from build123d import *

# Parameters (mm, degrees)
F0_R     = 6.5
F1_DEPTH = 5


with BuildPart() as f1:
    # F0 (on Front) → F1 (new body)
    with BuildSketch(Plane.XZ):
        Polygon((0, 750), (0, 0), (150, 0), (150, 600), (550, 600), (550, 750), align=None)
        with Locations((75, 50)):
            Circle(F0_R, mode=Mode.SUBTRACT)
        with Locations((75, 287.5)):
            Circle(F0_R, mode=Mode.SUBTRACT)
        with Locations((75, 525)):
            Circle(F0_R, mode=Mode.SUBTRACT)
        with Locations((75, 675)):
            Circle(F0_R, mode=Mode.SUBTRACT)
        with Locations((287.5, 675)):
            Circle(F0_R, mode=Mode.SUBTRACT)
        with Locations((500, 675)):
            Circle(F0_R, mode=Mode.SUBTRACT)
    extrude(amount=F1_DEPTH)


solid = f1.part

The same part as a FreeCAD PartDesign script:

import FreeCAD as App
import Part
import Sketcher
Q = App.Units.Quantity


def add_polygon(sketch, points):
    """Adds a closed chain of lines whose ends are joined by coincident constraints."""
    first, n = sketch.GeometryCount, len(points)
    for a, b in zip(points, points[1:] + points[:1]):
        sketch.addGeometry(Part.LineSegment(App.Vector(*a, 0), App.Vector(*b, 0)), False)
    for i in range(n):
        sketch.addConstraint(Sketcher.Constraint("Coincident", first + i, 2, first + (i + 1) % n, 1))

doc = App.newDocument("Part")
body = doc.addObject("PartDesign::Body", "Body")

sketch1 = doc.addObject("Sketcher::SketchObject", "Sketch")
body.addObject(sketch1)
sketch1.AttachmentSupport = (doc.XZ_Plane, [""])
sketch1.MapMode = "FlatFace"
add_polygon(sketch1, [(0, 750), (0, 0), (150, 0), (150, 600), (550, 600), (550, 750)])
sketch1.addGeometry(Part.Circle(App.Vector(75, 50, 0), App.Vector(0, 0, 1), 6), False)
sketch1.addGeometry(Part.Circle(App.Vector(75, 288, 0), App.Vector(0, 0, 1), 6), False)
sketch1.addGeometry(Part.Circle(App.Vector(75, 525, 0), App.Vector(0, 0, 1), 6), False)
sketch1.addGeometry(Part.Circle(App.Vector(75, 675, 0), App.Vector(0, 0, 1), 6), False)
sketch1.addGeometry(Part.Circle(App.Vector(288, 675, 0), App.Vector(0, 0, 1), 6), False)
sketch1.addGeometry(Part.Circle(App.Vector(500, 675, 0), App.Vector(0, 0, 1), 6), False)
sketch1.addConstraint([
    Sketcher.Constraint("Vertical", 0),
    Sketcher.Constraint("Horizontal", 1),
    Sketcher.Constraint("Vertical", 2),
    Sketcher.Constraint("Horizontal", 3),
    Sketcher.Constraint("Vertical", 4),
    Sketcher.Constraint("Horizontal", 5),
    Sketcher.Constraint("Coincident", 0, 2, -1, 1),
    Sketcher.Constraint("Equal", 6, 7),
    Sketcher.Constraint("Equal", 7, 8),
    Sketcher.Constraint("Equal", 8, 9),
    Sketcher.Constraint("Equal", 9, 10),
    Sketcher.Constraint("Equal", 10, 11),
    Sketcher.Constraint("Horizontal", 9, 3, 10, 3),
    Sketcher.Constraint("Horizontal", 10, 3, 11, 3),
    Sketcher.Constraint("Vertical", 6, 3, 7, 3),
    Sketcher.Constraint("Vertical", 7, 3, 8, 3),
    Sketcher.Constraint("Vertical", 8, 3, 9, 3),
    Sketcher.Constraint("Equal", 1, 4),
    Sketcher.Constraint("Diameter", 6, Q("13 mm")),
    Sketcher.Constraint("DistanceX", 1, 1, 1, 2, Q("150 mm")),
    Sketcher.Constraint("DistanceX", 3, 1, 3, 2, Q("400 mm")),
    Sketcher.Constraint("DistanceY", 0, 2, 0, 1, Q("750 mm")),
    Sketcher.Constraint("DistanceX", -1, 1, 6, 3, Q("75 mm")),
    Sketcher.Constraint("DistanceY", -1, 1, 6, 3, Q("50 mm")),
    Sketcher.Constraint("DistanceY", -1, 1, 8, 3, Q("525 mm")),
    Sketcher.Constraint("DistanceY", -1, 1, 9, 3, Q("675 mm")),
    Sketcher.Constraint("DistanceX", -1, 1, 11, 3, Q("500 mm")),
    Sketcher.Constraint("DistanceY", -1, 1, 7, 3, Q("287.5 mm")),
    Sketcher.Constraint("DistanceX", -1, 1, 10, 3, Q("287.5 mm")),
])
pad1 = doc.addObject("PartDesign::Pad", "Pad")
body.addObject(pad1)
pad1.Profile = sketch1
pad1.Length = 5

doc.recompute()
